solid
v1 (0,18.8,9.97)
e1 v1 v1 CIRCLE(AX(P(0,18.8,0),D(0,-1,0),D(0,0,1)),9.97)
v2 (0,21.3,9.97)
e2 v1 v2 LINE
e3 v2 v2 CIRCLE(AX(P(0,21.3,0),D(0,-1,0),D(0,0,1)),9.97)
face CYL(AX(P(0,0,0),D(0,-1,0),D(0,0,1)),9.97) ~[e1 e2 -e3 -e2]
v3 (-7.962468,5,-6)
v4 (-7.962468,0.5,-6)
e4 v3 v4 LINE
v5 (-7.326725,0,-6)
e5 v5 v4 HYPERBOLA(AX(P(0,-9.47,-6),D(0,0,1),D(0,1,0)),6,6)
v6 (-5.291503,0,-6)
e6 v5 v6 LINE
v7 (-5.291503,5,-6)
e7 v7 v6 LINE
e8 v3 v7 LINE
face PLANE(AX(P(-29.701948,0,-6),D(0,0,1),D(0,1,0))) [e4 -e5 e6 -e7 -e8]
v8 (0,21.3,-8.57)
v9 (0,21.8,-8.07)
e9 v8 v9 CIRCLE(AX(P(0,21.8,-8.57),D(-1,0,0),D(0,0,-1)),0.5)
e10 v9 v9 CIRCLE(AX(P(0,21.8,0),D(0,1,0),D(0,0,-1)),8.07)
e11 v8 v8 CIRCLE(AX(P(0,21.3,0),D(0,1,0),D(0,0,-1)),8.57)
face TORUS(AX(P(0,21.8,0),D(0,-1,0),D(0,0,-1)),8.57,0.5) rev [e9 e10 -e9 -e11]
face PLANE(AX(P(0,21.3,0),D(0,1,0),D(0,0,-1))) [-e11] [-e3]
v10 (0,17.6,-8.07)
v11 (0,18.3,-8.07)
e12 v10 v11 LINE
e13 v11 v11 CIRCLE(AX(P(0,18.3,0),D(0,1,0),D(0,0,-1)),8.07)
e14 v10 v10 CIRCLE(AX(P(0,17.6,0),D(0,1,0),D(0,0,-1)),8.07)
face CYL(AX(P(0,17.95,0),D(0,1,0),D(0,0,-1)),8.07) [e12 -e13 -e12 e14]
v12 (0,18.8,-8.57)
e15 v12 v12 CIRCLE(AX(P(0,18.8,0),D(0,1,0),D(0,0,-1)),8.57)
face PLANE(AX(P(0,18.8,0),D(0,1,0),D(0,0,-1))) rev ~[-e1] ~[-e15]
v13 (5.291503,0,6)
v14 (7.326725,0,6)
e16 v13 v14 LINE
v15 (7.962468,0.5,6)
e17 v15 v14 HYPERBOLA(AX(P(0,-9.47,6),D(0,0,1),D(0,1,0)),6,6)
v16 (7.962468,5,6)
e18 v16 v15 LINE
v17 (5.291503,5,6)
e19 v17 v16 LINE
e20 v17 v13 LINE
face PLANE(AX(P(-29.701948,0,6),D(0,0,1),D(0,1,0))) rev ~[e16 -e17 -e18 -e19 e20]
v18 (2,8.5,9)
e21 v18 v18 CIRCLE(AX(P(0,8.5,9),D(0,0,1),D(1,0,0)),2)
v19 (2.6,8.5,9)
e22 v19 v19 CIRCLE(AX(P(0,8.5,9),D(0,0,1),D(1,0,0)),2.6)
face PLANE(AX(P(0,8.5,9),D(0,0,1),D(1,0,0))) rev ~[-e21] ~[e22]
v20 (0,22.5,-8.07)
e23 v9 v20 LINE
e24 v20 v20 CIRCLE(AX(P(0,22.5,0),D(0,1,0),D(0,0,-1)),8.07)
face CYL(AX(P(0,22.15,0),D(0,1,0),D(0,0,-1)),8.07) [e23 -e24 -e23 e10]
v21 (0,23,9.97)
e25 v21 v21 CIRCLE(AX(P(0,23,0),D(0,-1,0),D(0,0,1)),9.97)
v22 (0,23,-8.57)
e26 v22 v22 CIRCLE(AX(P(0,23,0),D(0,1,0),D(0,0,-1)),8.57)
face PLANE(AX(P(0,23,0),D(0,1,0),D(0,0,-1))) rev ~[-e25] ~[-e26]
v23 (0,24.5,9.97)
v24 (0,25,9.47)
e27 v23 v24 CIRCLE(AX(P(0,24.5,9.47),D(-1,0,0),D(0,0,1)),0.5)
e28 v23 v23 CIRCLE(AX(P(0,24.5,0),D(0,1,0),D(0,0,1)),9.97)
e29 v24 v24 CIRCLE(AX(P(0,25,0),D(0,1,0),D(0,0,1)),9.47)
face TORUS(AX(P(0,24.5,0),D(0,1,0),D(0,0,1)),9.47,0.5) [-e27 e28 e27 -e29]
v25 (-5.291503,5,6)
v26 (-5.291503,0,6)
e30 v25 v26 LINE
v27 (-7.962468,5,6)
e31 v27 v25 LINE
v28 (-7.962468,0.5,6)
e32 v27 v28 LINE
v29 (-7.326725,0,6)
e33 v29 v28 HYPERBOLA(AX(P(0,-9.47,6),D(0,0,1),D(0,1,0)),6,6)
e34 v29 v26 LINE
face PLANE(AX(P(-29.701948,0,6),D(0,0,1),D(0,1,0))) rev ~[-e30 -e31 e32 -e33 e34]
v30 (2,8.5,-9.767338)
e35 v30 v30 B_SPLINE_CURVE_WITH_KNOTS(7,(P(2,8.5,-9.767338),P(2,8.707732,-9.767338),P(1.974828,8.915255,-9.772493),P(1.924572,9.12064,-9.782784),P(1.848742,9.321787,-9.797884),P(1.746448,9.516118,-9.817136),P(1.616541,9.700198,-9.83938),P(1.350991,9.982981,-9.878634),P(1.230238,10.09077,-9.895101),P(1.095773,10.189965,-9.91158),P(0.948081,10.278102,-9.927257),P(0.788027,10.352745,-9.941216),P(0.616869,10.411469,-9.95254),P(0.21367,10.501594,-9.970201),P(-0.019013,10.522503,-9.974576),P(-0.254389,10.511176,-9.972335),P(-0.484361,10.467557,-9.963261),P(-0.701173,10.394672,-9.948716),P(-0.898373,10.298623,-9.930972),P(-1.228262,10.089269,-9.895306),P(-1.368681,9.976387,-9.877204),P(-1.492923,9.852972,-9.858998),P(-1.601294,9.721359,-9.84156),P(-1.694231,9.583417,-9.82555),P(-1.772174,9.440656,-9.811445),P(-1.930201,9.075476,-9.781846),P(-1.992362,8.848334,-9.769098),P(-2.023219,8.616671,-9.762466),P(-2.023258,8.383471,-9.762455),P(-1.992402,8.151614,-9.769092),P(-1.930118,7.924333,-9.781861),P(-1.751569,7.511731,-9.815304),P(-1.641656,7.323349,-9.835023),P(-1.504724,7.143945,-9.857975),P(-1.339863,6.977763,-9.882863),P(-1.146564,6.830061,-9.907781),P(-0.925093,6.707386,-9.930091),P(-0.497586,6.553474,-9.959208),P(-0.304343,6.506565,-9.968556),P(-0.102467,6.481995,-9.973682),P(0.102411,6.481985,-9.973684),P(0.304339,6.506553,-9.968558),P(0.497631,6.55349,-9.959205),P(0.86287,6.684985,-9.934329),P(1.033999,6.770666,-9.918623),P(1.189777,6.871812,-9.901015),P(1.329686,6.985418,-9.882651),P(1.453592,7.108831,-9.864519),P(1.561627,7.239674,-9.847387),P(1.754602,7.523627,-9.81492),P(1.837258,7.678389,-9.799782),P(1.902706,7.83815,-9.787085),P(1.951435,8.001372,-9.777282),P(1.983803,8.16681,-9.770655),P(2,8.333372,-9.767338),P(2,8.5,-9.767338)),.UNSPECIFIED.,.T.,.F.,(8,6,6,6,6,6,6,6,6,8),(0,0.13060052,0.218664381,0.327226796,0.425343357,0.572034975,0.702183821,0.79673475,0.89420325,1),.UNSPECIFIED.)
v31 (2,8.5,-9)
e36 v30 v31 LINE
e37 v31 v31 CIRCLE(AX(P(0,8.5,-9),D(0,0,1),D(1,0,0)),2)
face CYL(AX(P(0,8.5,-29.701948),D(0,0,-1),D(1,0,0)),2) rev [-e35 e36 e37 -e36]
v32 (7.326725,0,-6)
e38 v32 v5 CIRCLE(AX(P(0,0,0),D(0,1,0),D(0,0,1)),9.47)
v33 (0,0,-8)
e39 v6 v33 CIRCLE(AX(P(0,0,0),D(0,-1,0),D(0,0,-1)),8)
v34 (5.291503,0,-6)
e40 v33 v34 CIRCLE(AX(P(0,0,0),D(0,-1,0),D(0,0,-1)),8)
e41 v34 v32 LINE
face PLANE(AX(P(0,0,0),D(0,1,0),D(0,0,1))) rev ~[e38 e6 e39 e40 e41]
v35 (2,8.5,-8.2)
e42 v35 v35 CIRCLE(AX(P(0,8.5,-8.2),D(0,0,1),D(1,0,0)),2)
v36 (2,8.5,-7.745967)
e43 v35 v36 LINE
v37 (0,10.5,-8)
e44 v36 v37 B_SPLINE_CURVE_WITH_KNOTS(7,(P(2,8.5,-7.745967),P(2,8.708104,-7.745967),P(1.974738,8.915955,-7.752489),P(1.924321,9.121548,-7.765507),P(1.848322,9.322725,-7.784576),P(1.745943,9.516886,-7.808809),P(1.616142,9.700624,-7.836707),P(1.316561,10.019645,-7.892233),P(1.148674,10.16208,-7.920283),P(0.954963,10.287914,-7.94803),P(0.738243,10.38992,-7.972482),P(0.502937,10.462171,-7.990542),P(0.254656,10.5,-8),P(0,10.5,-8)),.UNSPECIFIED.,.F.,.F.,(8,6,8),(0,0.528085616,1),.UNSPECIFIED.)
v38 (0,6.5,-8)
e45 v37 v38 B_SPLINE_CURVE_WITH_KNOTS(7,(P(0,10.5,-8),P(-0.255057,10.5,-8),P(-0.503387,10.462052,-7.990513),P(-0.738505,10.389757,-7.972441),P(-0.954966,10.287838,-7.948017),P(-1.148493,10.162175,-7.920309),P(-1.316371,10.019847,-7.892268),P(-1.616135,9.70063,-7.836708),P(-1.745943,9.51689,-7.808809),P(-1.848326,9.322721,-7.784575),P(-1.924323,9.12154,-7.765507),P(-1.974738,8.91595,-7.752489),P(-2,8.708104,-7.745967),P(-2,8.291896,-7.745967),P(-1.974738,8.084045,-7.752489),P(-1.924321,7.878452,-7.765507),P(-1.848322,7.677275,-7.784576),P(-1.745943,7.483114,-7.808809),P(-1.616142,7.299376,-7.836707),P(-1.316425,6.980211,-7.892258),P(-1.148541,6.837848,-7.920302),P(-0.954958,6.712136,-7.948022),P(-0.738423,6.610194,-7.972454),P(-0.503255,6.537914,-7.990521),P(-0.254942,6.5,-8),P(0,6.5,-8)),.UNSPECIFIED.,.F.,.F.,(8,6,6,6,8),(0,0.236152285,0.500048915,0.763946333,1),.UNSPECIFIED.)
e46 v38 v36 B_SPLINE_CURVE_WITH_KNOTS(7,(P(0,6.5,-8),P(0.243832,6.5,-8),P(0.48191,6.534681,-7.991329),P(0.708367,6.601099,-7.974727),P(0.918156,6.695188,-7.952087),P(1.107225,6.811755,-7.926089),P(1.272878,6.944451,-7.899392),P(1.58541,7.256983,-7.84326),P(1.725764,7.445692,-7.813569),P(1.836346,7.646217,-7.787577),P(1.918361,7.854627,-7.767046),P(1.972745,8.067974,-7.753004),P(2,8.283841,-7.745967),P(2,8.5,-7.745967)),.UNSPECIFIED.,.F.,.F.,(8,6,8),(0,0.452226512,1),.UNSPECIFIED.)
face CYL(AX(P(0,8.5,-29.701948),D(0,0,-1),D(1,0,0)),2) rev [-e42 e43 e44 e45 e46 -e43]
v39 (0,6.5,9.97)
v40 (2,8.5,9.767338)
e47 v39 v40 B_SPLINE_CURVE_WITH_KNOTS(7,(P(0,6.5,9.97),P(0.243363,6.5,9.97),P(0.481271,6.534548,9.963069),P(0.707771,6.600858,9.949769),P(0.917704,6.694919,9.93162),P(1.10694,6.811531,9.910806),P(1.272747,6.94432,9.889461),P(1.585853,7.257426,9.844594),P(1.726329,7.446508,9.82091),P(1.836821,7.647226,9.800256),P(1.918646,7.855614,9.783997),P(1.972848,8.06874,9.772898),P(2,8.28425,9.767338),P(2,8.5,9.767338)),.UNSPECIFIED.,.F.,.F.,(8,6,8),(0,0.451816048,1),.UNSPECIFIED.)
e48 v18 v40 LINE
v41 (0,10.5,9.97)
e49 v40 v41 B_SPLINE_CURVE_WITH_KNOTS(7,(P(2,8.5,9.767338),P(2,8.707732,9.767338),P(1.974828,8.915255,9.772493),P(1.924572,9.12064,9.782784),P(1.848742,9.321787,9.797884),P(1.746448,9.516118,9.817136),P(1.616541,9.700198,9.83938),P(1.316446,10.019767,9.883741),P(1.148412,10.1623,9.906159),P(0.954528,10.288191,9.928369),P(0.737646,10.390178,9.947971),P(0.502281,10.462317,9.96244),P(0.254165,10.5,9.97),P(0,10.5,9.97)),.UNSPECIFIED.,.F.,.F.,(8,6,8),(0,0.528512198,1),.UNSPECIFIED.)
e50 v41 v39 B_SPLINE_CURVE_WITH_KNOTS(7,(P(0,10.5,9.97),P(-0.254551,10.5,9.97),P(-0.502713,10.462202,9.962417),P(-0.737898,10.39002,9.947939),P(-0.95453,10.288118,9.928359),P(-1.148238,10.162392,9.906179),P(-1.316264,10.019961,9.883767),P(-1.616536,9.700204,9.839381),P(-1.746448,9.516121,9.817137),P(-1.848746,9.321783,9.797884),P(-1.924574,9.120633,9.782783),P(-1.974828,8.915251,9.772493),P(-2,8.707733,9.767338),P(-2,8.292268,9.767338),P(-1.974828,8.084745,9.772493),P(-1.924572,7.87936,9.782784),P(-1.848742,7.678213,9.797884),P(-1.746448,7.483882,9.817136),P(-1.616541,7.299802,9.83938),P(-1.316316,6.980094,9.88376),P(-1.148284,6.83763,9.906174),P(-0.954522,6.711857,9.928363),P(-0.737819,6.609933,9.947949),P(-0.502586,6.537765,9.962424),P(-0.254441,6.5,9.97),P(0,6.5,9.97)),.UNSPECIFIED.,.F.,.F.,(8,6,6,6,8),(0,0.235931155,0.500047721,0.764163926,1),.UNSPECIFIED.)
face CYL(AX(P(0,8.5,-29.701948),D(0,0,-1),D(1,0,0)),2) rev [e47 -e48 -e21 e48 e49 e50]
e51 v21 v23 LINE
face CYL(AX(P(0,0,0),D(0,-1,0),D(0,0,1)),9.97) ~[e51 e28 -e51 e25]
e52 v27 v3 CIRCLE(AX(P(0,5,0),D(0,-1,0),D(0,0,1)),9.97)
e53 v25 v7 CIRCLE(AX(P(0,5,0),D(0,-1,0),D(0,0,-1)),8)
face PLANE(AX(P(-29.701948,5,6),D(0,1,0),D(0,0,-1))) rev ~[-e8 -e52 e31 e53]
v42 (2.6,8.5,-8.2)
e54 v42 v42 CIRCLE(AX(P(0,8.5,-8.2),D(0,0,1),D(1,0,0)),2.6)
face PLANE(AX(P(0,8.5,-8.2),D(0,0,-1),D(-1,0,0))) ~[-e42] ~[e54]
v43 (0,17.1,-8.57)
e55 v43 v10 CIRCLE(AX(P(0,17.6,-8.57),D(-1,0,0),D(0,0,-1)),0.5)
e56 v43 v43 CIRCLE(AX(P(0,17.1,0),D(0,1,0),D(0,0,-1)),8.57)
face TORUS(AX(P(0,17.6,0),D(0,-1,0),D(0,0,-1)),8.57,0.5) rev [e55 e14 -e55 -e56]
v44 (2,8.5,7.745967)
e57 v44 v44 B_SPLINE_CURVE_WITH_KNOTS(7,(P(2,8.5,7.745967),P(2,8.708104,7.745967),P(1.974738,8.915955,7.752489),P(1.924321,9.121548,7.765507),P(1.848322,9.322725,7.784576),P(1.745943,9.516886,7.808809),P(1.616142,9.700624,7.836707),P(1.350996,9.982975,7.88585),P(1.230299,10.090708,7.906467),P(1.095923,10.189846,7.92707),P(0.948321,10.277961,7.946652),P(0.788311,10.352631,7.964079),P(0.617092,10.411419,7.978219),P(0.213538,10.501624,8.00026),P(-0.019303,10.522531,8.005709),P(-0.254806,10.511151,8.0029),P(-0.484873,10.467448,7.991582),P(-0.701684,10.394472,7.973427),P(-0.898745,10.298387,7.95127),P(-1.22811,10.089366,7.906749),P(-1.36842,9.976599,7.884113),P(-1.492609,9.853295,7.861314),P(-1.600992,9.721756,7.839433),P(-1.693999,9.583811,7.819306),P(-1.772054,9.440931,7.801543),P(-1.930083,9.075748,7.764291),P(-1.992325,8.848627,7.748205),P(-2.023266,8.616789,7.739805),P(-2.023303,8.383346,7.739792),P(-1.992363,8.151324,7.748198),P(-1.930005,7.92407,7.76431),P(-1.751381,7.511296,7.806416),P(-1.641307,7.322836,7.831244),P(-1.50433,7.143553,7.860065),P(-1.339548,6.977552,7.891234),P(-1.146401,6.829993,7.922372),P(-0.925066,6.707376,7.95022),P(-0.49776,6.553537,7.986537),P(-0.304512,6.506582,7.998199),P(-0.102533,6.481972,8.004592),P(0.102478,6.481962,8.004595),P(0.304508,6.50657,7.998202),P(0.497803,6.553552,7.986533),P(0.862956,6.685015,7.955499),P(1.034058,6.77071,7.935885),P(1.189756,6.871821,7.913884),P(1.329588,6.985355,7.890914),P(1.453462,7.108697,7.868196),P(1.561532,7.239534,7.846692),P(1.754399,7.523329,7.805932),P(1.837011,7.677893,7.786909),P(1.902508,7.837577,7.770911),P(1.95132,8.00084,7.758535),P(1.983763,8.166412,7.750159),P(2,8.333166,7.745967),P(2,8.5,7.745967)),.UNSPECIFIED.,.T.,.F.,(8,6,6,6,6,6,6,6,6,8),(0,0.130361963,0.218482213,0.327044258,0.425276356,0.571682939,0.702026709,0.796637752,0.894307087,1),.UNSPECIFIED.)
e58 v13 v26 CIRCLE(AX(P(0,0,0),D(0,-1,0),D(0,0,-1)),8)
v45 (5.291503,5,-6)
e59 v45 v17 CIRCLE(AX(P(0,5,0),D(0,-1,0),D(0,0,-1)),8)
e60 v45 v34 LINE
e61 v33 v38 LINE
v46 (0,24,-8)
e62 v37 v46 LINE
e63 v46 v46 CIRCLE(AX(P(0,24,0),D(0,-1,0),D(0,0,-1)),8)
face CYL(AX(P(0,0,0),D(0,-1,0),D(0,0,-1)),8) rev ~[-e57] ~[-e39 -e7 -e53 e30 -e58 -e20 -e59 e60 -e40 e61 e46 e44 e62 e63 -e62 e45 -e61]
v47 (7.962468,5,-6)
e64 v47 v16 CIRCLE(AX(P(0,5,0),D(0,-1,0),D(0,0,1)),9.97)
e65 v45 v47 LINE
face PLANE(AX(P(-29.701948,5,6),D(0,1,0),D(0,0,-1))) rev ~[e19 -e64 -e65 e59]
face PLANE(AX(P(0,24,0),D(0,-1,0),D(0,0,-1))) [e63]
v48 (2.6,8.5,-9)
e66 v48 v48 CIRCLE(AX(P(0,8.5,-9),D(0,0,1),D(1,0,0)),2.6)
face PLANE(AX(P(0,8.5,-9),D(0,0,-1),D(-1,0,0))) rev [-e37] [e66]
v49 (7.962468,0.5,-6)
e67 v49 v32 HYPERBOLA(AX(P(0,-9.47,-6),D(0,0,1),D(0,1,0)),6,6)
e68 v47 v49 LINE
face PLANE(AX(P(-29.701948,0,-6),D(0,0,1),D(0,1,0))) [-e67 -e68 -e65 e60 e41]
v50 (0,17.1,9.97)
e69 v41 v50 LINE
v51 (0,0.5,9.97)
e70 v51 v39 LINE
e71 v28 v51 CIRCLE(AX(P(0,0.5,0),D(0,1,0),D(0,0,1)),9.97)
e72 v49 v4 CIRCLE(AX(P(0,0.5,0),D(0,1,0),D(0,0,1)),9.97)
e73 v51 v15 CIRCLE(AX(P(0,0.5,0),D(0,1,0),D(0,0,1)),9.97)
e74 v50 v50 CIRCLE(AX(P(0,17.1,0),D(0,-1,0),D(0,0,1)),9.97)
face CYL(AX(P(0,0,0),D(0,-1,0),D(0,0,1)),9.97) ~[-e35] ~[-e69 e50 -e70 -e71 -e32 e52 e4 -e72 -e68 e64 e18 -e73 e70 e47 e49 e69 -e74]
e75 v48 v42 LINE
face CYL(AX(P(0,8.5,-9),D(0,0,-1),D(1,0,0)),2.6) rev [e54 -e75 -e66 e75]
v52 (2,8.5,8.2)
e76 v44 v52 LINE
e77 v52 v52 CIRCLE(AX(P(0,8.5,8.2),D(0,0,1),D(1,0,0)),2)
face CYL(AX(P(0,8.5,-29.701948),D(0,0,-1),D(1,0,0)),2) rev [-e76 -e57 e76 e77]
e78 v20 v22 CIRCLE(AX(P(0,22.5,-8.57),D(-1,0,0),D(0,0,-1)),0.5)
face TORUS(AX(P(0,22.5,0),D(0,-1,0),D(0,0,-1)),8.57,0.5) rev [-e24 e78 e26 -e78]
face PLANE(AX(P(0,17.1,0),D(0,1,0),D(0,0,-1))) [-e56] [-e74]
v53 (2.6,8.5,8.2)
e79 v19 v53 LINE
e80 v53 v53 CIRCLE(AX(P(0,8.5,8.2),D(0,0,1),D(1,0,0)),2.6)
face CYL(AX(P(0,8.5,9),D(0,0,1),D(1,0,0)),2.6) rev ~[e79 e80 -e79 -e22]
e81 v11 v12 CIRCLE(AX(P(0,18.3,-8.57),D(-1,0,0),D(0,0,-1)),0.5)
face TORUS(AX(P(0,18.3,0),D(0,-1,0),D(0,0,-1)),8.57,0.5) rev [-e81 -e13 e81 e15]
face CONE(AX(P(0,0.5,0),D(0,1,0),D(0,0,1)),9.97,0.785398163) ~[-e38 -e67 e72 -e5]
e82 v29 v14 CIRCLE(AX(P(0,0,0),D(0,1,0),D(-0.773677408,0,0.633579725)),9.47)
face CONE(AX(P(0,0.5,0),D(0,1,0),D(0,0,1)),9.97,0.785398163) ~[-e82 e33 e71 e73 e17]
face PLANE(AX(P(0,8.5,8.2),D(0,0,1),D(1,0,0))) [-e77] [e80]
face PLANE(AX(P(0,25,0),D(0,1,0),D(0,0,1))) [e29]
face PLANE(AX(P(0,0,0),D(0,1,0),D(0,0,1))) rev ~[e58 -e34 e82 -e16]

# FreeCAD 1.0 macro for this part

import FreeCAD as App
import Part
import Sketcher
Q = App.Units.Quantity


def edges_at(feature, points):
    """Names of the edges that pass closest to the given points."""
    edges = feature.Shape.Edges
    near = lambda p: min(range(len(edges)), key=lambda i: edges[i].distToShape(Part.Vertex(*p))[0])
    return sorted({f"Edge{near(p) + 1}" for p in points})


def add_polygon(sketch, points):
    """Adds a closed chain of lines whose ends are joined by coincident constraints."""
    first, n = sketch.GeometryCount, len(points)
    for a, b in zip(points, points[1:] + points[:1]):
        sketch.addGeometry(Part.LineSegment(App.Vector(*a, 0), App.Vector(*b, 0)), False)
    for i in range(n):
        sketch.addConstraint(Sketcher.Constraint("Coincident", first + i, 2, first + (i + 1) % n, 1))

doc = App.newDocument("Part")
body = doc.addObject("PartDesign::Body", "Body")

# Sketch on XZ plane
sketch1 = body.newObject("Sketcher::SketchObject", "Sketch")
sketch1.AttachmentSupport = (doc.getObject("XZ_Plane"), [""])
sketch1.MapMode = "FlatFace"
sketch1.addGeometry(Part.Circle(App.Vector(0, 0, 0), App.Vector(0, 0, 1), 10), False)
sketch1.addConstraint([
    Sketcher.Constraint("Coincident", 0, 3, -1, 1),
    Sketcher.Constraint("Diameter", 0, Q("19.94 mm")),
])
pad1 = body.newObject("PartDesign::Pad", "Pad")
pad1.Profile = sketch1
pad1.Length = 25
pad1.Reversed = True
doc.recompute()

fillet = body.newObject("PartDesign::Fillet", "Fillet")
fillet.Base = (pad1, edges_at(pad1, [(0, 25, -9.97)]))
fillet.Radius = 0.5

# Sketch on XY plane
sketch2 = body.newObject("Sketcher::SketchObject", "Sketch001")
sketch2.AttachmentSupport = (doc.getObject("XY_Plane"), [""])
sketch2.MapMode = "FlatFace"
add_polygon(sketch2, [(-10, 23), (-10, 21.3), (-8.1, 21.3), (-8.1, 23)])  # lines 0-3
add_polygon(sketch2, [(-10, 18.8), (-10, 17.1), (-8.1, 17.1), (-8.1, 18.8)])  # lines 4-7
sketch2.addConstraint([
    Sketcher.Constraint("Vertical", 0),
    Sketcher.Constraint("Horizontal", 1),
    Sketcher.Constraint("Vertical", 2),
    Sketcher.Constraint("Horizontal", 3),
    Sketcher.Constraint("Vertical", 4),
    Sketcher.Constraint("Horizontal", 5),
    Sketcher.Constraint("Vertical", 6),
    Sketcher.Constraint("Horizontal", 7),
    Sketcher.Constraint("Vertical", 3, 2, 4, 2),
    Sketcher.Constraint("Vertical", 2, 2, 5, 2),
    Sketcher.Constraint("Equal", 2, 4),
    Sketcher.Constraint("DistanceX", 1, 1, 1, 2, Q("1.9 mm")),
    Sketcher.Constraint("DistanceY", 0, 2, 0, 1, Q("1.7 mm")),
    Sketcher.Constraint("DistanceY", -1, 1, 2, 2, Q("23 mm")),
    Sketcher.Constraint("DistanceY", -1, 1, 4, 2, Q("17.1 mm")),
    Sketcher.Constraint("DistanceX", 0, 2, -1, 1, Q("9.97 mm")),
])
groove = body.newObject("PartDesign::Groove", "Groove")
groove.Profile = sketch2
groove.ReferenceAxis = (sketch2, ["V_Axis"])
groove.Angle = 360
doc.recompute()

fillet2 = body.newObject("PartDesign::Fillet", "Fillet001")
fillet2.Base = (groove, edges_at(groove, [
    (0, 21.3, 8.07),
    (0, 23, 8.07),
    (0, 17.1, 8.07),
    (0, 18.8, 8.07),
]))
fillet2.Radius = 0.5

# Sketch on XY plane
sketch3 = body.newObject("Sketcher::SketchObject", "Sketch002")
sketch3.AttachmentSupport = (doc.getObject("XY_Plane"), [""])
sketch3.MapMode = "FlatFace"
sketch3.addGeometry(Part.Circle(App.Vector(0, 8.5, 0), App.Vector(0, 0, 1), 2), False)
sketch3.addConstraint([
    Sketcher.Constraint("PointOnObject", 0, 3, -2),
    Sketcher.Constraint("Diameter", 0, Q("4 mm")),
    Sketcher.Constraint("DistanceY", -1, 1, 0, 3, Q("8.5 mm")),
])
pocket1 = body.newObject("PartDesign::Pocket", "Pocket")
pocket1.Profile = sketch3
pocket1.Type = "ThroughAll"
pocket1.Midplane = True

# Sketch on XY plane
sketch4 = body.newObject("Sketcher::SketchObject", "Sketch003")
sketch4.AttachmentSupport = (doc.getObject("XY_Plane"), [""])
sketch4.MapMode = "FlatFace"
sketch4.AttachmentOffset = App.Placement(App.Vector(0, 0, 9), App.Rotation())
sketch4.addGeometry([
    Part.Circle(App.Vector(0, 8.5, 0), App.Vector(0, 0, 1), 2.6),
    Part.Circle(App.Vector(0, 8.5, 0), App.Vector(0, 0, 1), 2),
], False)
sketch4.addConstraint([
    Sketcher.Constraint("Coincident", 1, 3, 0, 3),
    Sketcher.Constraint("PointOnObject", 0, 3, -2),
    Sketcher.Constraint("Diameter", 1, Q("4 mm")),
    Sketcher.Constraint("Diameter", 0, Q("5.2 mm")),
    Sketcher.Constraint("DistanceY", -1, 1, 0, 3, Q("8.5 mm")),
])
pocket2 = body.newObject("PartDesign::Pocket", "Pocket001")
pocket2.Profile = sketch4
pocket2.Length = 0.8
doc.recompute()

mirrored = body.newObject("PartDesign::Mirrored", "Mirrored")
mirrored.Originals = [pocket2]
mirrored.MirrorPlane = (doc.getObject("XY_Plane"), [""])
body.Tip = mirrored
doc.recompute()

chamfer = body.newObject("PartDesign::Chamfer", "Chamfer")
chamfer.Base = (mirrored, edges_at(mirrored, [(0, 0, -9.97)]))
chamfer.Size = 0.5

# Sketch on YZ plane
sketch5 = body.newObject("Sketcher::SketchObject", "Sketch004")
sketch5.AttachmentSupport = (doc.getObject("YZ_Plane"), [""])
sketch5.MapMode = "FlatFace"
add_polygon(sketch5, [(5, 6), (0, 6), (0, -6), (5, -6)])  # lines 0-3
sketch5.addConstraint([
    Sketcher.Constraint("Horizontal", 0),
    Sketcher.Constraint("Vertical", 1),
    Sketcher.Constraint("Horizontal", 2),
    Sketcher.Constraint("Vertical", 3),
    Sketcher.Constraint("Symmetric", 0, 2, 1, 2, -1, 1),
    Sketcher.Constraint("DistanceX", 0, 2, 0, 1, Q("5 mm")),
    Sketcher.Constraint("DistanceY", 1, 2, 1, 1, Q("12 mm")),
])
pocket3 = body.newObject("PartDesign::Pocket", "Pocket002")
pocket3.Profile = sketch5
pocket3.Type = "ThroughAll"
pocket3.Midplane = True

# Sketch on XZ plane
sketch6 = body.newObject("Sketcher::SketchObject", "Sketch005")
sketch6.AttachmentSupport = (doc.getObject("XZ_Plane"), [""])
sketch6.MapMode = "FlatFace"
sketch6.addGeometry(Part.Circle(App.Vector(0, 0, 0), App.Vector(0, 0, 1), 8), False)
sketch6.addConstraint([
    Sketcher.Constraint("Coincident", 0, 3, -1, 1),
    Sketcher.Constraint("Diameter", 0, Q("16 mm")),
])
pocket4 = body.newObject("PartDesign::Pocket", "Pocket003")
pocket4.Profile = sketch6
pocket4.Length = 24

doc.recompute()
